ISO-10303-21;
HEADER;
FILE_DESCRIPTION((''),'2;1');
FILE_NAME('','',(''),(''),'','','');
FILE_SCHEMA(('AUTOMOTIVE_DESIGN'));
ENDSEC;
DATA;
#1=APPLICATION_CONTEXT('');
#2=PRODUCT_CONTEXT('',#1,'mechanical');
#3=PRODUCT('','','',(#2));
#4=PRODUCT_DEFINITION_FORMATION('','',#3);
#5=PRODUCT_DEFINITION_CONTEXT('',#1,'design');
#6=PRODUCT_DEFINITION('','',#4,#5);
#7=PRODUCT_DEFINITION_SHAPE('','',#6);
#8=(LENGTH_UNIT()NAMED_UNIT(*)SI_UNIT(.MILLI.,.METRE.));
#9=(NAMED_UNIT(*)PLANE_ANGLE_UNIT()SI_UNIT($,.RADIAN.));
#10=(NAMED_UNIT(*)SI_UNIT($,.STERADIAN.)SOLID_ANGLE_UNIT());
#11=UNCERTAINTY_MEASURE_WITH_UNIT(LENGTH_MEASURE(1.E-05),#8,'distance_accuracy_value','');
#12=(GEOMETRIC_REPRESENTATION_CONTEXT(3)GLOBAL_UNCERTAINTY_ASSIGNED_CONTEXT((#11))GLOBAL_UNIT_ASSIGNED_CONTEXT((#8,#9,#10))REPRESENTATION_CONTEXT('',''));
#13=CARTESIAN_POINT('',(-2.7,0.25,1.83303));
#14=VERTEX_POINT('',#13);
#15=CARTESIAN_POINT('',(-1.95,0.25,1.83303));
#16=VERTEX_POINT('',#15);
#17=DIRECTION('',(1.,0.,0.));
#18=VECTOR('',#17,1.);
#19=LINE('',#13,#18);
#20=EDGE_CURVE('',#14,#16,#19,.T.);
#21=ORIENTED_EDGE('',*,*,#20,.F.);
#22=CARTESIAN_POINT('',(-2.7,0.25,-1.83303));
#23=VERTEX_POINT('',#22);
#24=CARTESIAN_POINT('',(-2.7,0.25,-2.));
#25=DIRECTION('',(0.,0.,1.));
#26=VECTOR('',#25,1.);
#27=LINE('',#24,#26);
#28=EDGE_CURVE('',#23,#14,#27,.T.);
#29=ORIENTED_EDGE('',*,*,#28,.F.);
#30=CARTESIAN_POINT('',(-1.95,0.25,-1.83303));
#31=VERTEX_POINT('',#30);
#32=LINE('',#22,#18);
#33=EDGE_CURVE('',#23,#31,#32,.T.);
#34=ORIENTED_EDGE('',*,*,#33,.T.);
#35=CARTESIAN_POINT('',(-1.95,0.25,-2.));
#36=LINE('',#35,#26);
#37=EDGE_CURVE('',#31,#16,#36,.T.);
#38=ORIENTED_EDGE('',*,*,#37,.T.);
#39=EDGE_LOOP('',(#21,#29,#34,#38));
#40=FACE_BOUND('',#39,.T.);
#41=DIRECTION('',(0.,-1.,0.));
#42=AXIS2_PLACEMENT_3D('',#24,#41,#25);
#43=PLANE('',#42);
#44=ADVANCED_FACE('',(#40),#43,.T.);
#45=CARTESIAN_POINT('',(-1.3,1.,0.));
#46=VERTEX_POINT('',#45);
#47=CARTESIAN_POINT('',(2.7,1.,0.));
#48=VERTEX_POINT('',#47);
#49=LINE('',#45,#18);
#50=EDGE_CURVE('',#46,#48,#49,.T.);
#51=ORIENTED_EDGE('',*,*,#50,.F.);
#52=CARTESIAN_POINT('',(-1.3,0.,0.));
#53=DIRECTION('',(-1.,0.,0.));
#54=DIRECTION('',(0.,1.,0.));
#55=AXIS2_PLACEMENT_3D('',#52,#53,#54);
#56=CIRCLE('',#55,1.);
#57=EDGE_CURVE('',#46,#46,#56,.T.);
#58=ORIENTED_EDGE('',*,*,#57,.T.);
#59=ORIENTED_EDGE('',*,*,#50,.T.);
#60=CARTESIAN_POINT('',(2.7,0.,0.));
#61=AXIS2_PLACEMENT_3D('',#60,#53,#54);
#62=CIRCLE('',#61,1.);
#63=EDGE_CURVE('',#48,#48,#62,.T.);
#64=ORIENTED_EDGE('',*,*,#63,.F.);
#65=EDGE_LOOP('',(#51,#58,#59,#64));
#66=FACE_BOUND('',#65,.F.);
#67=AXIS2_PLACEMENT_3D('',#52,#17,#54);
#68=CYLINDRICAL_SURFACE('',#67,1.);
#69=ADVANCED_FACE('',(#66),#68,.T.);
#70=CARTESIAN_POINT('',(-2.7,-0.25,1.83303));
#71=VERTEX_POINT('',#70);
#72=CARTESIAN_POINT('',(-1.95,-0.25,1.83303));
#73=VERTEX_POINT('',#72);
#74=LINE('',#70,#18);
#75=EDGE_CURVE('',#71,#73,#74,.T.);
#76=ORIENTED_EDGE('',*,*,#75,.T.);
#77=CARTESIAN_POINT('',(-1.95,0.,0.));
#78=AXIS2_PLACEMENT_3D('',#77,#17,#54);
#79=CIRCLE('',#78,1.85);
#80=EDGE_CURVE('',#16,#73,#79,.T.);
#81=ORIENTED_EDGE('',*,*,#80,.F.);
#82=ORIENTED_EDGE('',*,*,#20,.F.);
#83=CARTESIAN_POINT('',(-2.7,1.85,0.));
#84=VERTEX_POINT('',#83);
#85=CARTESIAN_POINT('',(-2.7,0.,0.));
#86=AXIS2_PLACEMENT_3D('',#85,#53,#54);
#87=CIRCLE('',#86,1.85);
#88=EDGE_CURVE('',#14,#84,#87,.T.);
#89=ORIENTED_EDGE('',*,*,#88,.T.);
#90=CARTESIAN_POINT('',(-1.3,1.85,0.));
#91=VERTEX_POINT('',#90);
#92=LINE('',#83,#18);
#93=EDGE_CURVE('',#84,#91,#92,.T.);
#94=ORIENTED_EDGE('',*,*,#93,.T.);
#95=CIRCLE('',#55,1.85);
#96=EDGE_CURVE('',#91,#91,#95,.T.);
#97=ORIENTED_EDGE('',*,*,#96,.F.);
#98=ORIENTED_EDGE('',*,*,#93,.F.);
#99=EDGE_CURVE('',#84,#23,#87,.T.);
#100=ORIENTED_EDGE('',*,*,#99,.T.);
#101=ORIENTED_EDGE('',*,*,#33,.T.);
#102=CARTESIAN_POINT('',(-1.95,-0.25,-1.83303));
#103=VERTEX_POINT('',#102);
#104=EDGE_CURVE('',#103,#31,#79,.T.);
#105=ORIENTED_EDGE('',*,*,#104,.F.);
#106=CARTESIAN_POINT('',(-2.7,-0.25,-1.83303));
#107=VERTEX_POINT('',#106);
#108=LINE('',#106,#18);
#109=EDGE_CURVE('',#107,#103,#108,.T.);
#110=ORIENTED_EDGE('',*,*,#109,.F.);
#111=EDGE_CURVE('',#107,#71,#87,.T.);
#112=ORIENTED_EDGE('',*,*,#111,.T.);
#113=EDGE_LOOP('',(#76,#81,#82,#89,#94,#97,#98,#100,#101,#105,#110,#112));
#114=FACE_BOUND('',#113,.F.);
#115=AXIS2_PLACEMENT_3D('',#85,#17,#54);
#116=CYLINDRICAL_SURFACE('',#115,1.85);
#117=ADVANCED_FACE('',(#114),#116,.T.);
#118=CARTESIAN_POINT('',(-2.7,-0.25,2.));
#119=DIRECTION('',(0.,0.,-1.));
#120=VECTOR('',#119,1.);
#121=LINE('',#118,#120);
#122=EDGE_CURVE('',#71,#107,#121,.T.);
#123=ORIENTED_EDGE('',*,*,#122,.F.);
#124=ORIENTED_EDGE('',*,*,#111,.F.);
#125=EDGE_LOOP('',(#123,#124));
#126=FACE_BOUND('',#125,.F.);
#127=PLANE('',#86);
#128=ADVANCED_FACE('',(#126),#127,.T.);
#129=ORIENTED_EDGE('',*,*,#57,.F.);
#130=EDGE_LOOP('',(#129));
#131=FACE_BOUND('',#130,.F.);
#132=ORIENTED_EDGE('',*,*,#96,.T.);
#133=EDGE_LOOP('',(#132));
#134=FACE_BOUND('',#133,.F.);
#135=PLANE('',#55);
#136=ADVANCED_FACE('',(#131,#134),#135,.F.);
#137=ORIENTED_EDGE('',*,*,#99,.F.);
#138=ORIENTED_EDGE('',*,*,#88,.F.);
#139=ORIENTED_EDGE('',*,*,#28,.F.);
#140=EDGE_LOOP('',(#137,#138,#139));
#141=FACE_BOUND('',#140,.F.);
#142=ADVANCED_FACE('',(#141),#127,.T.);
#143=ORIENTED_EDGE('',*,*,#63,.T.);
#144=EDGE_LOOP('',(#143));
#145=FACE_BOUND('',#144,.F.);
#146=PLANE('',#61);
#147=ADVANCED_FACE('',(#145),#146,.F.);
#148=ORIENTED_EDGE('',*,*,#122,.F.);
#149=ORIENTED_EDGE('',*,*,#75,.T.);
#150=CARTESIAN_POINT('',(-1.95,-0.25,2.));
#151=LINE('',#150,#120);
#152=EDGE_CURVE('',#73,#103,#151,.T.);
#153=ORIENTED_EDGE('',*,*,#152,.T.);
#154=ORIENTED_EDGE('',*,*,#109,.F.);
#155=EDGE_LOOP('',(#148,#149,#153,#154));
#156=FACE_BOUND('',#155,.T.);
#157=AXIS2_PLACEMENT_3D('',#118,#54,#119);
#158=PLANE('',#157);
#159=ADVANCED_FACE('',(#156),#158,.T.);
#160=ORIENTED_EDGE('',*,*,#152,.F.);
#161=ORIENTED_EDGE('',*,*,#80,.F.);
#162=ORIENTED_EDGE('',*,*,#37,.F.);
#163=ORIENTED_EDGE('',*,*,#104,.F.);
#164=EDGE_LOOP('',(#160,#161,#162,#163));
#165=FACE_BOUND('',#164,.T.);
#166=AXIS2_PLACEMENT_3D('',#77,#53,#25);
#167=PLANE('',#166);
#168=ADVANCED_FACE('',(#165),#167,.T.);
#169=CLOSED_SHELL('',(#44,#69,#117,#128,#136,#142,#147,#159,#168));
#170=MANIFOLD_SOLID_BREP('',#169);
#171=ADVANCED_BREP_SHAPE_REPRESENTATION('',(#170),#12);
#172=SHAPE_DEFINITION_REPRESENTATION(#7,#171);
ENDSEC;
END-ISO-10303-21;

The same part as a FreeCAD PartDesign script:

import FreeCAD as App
import Part
import Sketcher

V = App.Vector
Q = App.Units.Quantity

doc = App.newDocument("Part")
body = doc.addObject("PartDesign::Body", "Body")

# Sketch on XY plane
sketch1 = doc.addObject("Sketcher::SketchObject", "Sketch")
body.addObject(sketch1)
sketch1.AttachmentSupport = (doc.XY_Plane, [""])
sketch1.MapMode = "FlatFace"
sketch1.addGeometry([
    Part.LineSegment(V(-2.7, 0, 0), V(2.7, 0, 0)),  # 0
    Part.LineSegment(V(2.7, 0, 0), V(2.7, 1, 0)),  # 1
    Part.LineSegment(V(2.7, 1, 0), V(-1.3, 1, 0)),  # 2
    Part.LineSegment(V(-1.3, 1, 0), V(-1.3, 1.9, 0)),  # 3
    Part.LineSegment(V(-1.3, 1.9, 0), V(-2.7, 1.9, 0)),  # 4
    Part.LineSegment(V(-2.7, 1.9, 0), V(-2.7, 0, 0)),  # 5
], False)
sketch1.addConstraint([
    Sketcher.Constraint("Coincident", 0, 2, 1, 1),
    Sketcher.Constraint("Coincident", 1, 2, 2, 1),
    Sketcher.Constraint("Coincident", 2, 2, 3, 1),
    Sketcher.Constraint("Coincident", 3, 2, 4, 1),
    Sketcher.Constraint("Coincident", 4, 2, 5, 1),
    Sketcher.Constraint("Coincident", 5, 2, 0, 1),
    Sketcher.Constraint("Horizontal", 0),
    Sketcher.Constraint("Vertical", 1),
    Sketcher.Constraint("Horizontal", 2),
    Sketcher.Constraint("Vertical", 3),
    Sketcher.Constraint("Horizontal", 4),
    Sketcher.Constraint("Vertical", 5),
    Sketcher.Constraint("Symmetric", 0, 2, 5, 2, -1, 1),
    Sketcher.Constraint("DistanceX", 2, 2, 2, 1, Q("4 mm")),
    Sketcher.Constraint("DistanceY", 1, 1, 1, 2, Q("1 mm")),
    Sketcher.Constraint("DistanceX", 4, 2, 4, 1, Q("1.4 mm")),
    Sketcher.Constraint("DistanceY", 5, 2, 5, 1, Q("1.85 mm")),
])
revolution = doc.addObject("PartDesign::Revolution", "Revolution")
body.addObject(revolution)
revolution.Profile = sketch1
revolution.ReferenceAxis = (sketch1, ["H_Axis"])
revolution.Angle = 360

# Sketch on YZ plane
sketch2 = doc.addObject("Sketcher::SketchObject", "Sketch001")
body.addObject(sketch2)
sketch2.AttachmentSupport = (doc.YZ_Plane, [""])
sketch2.MapMode = "FlatFace"
sketch2.AttachmentOffset = App.Placement(V(0, 0, -2.7), App.Rotation())
sketch2.addGeometry([
    Part.LineSegment(V(0.2, 2, 0), V(0.2, -2, 0)),
    Part.LineSegment(V(0.2, -2, 0), V(-0.2, -2, 0)),
    Part.LineSegment(V(-0.2, -2, 0), V(-0.2, 2, 0)),
    Part.LineSegment(V(-0.2, 2, 0), V(0.2, 2, 0)),
], False)
sketch2.addConstraint([
    Sketcher.Constraint("Coincident", 0, 2, 1, 1),
    Sketcher.Constraint("Coincident", 1, 2, 2, 1),
    Sketcher.Constraint("Coincident", 2, 2, 3, 1),
    Sketcher.Constraint("Coincident", 3, 2, 0, 1),
    Sketcher.Constraint("Vertical", 0),
    Sketcher.Constraint("Horizontal", 1),
    Sketcher.Constraint("Vertical", 2),
    Sketcher.Constraint("Horizontal", 3),
    Sketcher.Constraint("Symmetric", 0, 2, 2, 2, -1, 1),
    Sketcher.Constraint("DistanceY", 0, 2, 0, 1, Q("4 mm")),
    Sketcher.Constraint("DistanceX", 1, 2, 1, 1, Q("0.5 mm")),
])
pocket1 = doc.addObject("PartDesign::Pocket", "Pocket")
body.addObject(pocket1)
pocket1.Profile = sketch2
pocket1.Length = 0.75
pocket1.Reversed = True

doc.recompute()
